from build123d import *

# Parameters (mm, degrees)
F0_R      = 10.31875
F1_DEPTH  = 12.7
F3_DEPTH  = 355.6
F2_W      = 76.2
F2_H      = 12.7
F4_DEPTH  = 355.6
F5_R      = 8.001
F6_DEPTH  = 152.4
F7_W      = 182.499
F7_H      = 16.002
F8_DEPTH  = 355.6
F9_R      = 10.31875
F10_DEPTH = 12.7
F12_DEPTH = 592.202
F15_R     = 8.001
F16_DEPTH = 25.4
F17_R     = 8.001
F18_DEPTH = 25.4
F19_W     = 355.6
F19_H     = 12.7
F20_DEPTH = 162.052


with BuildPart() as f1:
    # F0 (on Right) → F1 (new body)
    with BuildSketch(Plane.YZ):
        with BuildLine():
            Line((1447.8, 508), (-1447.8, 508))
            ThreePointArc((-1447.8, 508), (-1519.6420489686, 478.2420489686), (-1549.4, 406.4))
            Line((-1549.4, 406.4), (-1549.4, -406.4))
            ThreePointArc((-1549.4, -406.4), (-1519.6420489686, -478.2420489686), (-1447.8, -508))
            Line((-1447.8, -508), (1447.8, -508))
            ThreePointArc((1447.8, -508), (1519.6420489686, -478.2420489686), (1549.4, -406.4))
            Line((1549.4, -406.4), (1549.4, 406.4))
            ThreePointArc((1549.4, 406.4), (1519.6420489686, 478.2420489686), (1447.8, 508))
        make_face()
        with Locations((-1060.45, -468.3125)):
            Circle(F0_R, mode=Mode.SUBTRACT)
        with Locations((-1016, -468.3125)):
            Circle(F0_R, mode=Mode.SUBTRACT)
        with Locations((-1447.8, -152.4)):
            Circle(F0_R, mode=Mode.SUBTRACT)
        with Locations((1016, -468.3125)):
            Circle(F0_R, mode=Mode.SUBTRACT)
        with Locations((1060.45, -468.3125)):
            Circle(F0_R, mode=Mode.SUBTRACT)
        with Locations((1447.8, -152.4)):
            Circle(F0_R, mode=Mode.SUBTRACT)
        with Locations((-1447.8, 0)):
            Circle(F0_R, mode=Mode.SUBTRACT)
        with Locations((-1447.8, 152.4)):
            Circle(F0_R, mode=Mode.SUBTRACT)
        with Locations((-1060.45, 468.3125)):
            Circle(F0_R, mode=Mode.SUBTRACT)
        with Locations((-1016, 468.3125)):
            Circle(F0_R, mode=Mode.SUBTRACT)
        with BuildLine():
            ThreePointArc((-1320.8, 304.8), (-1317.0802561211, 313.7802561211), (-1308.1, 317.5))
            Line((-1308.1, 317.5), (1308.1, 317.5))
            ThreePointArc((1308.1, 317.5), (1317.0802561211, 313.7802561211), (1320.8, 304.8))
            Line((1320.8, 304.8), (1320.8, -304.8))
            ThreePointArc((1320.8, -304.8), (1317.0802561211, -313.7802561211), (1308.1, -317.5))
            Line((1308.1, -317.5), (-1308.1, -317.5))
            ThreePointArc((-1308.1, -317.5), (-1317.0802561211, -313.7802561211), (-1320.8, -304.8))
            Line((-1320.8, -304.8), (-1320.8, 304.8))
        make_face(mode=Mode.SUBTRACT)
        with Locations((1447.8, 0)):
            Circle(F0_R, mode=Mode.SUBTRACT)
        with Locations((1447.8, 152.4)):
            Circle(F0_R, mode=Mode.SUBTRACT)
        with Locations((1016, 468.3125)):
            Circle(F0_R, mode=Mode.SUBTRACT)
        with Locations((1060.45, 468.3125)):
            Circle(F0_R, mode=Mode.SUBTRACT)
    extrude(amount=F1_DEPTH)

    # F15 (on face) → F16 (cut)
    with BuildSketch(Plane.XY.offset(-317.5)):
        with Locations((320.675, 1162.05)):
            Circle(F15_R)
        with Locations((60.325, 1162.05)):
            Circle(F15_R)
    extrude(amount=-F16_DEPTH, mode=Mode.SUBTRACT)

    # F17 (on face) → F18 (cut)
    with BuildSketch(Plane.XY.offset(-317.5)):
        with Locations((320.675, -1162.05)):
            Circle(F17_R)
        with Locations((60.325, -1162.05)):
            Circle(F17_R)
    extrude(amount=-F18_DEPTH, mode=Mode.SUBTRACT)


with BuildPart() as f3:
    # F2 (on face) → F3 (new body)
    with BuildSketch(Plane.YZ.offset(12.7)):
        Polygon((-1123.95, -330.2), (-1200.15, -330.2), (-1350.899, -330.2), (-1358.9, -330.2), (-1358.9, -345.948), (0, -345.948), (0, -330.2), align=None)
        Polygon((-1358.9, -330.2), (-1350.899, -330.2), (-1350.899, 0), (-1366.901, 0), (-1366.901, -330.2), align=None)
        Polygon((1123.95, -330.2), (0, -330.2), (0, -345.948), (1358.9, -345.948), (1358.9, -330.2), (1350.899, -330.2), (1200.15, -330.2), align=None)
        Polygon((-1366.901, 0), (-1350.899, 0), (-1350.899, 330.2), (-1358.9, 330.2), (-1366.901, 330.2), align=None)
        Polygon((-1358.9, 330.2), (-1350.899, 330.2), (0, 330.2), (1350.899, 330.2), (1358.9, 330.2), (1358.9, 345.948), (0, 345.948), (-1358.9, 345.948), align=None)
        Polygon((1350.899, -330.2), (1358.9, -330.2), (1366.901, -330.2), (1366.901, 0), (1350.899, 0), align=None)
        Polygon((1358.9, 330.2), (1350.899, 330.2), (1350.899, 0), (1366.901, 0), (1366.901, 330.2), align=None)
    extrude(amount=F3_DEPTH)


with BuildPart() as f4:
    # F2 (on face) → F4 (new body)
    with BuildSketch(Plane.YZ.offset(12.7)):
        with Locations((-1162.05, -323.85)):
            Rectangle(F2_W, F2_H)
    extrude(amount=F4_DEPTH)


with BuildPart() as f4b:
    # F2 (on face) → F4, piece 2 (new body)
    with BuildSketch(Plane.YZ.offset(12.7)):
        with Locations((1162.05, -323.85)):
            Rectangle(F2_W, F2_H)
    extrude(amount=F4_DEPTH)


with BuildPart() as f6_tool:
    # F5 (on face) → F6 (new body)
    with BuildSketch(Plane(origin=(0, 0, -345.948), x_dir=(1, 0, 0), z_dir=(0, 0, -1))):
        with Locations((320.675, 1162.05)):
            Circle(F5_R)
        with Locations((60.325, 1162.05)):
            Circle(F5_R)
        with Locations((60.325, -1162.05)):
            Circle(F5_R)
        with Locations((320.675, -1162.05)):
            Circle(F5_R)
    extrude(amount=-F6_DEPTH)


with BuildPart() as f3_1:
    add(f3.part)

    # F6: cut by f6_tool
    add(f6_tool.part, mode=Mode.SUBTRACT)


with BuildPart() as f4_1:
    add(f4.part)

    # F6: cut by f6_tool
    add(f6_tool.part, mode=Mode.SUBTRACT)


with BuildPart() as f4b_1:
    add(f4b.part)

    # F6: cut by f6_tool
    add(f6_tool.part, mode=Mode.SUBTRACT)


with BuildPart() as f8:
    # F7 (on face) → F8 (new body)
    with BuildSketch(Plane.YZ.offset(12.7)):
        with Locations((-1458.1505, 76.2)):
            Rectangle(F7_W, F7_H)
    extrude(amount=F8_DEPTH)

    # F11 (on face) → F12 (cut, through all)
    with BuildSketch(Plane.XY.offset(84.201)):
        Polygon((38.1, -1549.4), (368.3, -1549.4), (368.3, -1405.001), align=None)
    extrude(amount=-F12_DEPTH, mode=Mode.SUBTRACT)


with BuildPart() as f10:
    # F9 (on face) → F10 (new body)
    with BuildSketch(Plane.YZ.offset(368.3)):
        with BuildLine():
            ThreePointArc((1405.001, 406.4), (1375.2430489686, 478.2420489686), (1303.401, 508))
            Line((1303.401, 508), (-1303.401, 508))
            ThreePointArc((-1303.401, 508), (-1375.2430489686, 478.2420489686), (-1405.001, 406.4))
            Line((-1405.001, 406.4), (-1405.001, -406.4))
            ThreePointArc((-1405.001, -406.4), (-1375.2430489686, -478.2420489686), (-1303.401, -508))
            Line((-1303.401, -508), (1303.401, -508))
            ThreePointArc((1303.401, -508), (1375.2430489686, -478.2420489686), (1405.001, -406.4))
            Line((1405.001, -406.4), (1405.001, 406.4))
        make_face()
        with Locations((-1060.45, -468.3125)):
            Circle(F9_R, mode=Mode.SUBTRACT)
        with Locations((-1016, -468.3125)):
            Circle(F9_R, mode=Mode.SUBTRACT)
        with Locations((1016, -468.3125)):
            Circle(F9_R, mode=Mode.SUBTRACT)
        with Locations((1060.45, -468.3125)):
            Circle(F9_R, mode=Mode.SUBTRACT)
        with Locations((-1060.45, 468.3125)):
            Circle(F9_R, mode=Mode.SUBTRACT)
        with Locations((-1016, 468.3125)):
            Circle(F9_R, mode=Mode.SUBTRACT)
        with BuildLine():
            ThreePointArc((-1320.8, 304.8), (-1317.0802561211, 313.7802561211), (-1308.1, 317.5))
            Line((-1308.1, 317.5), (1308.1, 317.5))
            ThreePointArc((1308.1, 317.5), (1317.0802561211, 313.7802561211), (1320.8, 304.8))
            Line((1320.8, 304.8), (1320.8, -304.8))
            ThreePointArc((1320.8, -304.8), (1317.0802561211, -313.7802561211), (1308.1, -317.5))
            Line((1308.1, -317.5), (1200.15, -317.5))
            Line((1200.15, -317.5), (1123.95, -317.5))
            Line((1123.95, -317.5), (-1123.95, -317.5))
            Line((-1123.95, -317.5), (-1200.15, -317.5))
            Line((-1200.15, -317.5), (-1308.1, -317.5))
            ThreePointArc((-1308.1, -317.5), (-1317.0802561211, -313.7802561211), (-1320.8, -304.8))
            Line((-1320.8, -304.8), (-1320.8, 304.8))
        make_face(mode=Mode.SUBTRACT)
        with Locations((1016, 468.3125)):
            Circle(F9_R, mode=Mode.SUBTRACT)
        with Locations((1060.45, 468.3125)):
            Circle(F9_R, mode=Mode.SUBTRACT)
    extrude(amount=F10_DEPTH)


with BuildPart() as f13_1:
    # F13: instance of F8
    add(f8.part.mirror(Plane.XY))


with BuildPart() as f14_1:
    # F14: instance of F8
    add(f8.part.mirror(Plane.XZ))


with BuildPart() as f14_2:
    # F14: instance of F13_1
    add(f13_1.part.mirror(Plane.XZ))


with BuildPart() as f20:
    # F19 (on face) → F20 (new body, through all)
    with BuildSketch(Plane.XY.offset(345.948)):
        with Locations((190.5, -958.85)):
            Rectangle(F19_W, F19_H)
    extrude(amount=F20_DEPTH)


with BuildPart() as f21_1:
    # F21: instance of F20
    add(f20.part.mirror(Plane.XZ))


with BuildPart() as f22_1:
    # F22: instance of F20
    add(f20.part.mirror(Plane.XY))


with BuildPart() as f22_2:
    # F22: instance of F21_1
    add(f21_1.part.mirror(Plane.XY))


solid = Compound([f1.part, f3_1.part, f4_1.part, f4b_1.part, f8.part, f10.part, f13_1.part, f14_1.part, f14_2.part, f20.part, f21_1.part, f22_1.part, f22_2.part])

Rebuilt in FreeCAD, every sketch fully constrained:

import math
import FreeCAD as App
import Part
import Sketcher
Q = App.Units.Quantity


def add_polygon(sketch, points):
    """Adds a closed chain of lines whose ends are joined by coincident constraints."""
    first, n = sketch.GeometryCount, len(points)
    for a, b in zip(points, points[1:] + points[:1]):
        sketch.addGeometry(Part.LineSegment(App.Vector(*a, 0), App.Vector(*b, 0)), False)
    for i in range(n):
        sketch.addConstraint(Sketcher.Constraint("Coincident", first + i, 2, first + (i + 1) % n, 1))

doc = App.newDocument("Part")
body = doc.addObject("PartDesign::Body", "Body")

sketch1 = doc.addObject("Sketcher::SketchObject", "Sketch")
body.addObject(sketch1)
sketch1.AttachmentSupport = (doc.YZ_Plane, [""])
sketch1.MapMode = "FlatFace"
sketch1.addGeometry(Part.LineSegment(App.Vector(1448, 508, 0), App.Vector(-1448, 508, 0)), False)
sketch1.addGeometry(Part.ArcOfCircle(Part.Circle(App.Vector(-1448, 406, 0), App.Vector(0, 0, 1), 102), math.radians(90), math.radians(180)), False)
sketch1.addGeometry(Part.LineSegment(App.Vector(-1549, 406, 0), App.Vector(-1549, -406, 0)), False)
sketch1.addGeometry(Part.ArcOfCircle(Part.Circle(App.Vector(-1448, -406, 0), App.Vector(0, 0, 1), 102), math.radians(180), math.radians(270)), False)
sketch1.addGeometry(Part.LineSegment(App.Vector(-1448, -508, 0), App.Vector(1448, -508, 0)), False)
sketch1.addGeometry(Part.ArcOfCircle(Part.Circle(App.Vector(1448, -406, 0), App.Vector(0, 0, 1), 102), math.radians(-90), math.radians(0)), False)
sketch1.addGeometry(Part.LineSegment(App.Vector(1549, -406, 0), App.Vector(1549, 406, 0)), False)
sketch1.addGeometry(Part.ArcOfCircle(Part.Circle(App.Vector(1448, 406, 0), App.Vector(0, 0, 1), 102), math.radians(0), math.radians(90)), False)
sketch1.addGeometry(Part.Circle(App.Vector(-1060, -468, 0), App.Vector(0, 0, 1), 10), False)
sketch1.addGeometry(Part.Circle(App.Vector(-1016, -468, 0), App.Vector(0, 0, 1), 10), False)
sketch1.addGeometry(Part.Circle(App.Vector(-1448, -152, 0), App.Vector(0, 0, 1), 10), False)
sketch1.addGeometry(Part.Circle(App.Vector(1016, -468, 0), App.Vector(0, 0, 1), 10), False)
sketch1.addGeometry(Part.Circle(App.Vector(1060, -468, 0), App.Vector(0, 0, 1), 10), False)
sketch1.addGeometry(Part.Circle(App.Vector(1448, -152, 0), App.Vector(0, 0, 1), 10), False)
sketch1.addGeometry(Part.Circle(App.Vector(-1448, 0, 0), App.Vector(0, 0, 1), 10), False)
sketch1.addGeometry(Part.Circle(App.Vector(-1448, 152, 0), App.Vector(0, 0, 1), 10), False)
sketch1.addGeometry(Part.Circle(App.Vector(-1060, 468, 0), App.Vector(0, 0, 1), 10), False)
sketch1.addGeometry(Part.Circle(App.Vector(-1016, 468, 0), App.Vector(0, 0, 1), 10), False)
sketch1.addGeometry(Part.LineSegment(App.Vector(-1321, -305, 0), App.Vector(-1321, 305, 0)), False)
sketch1.addGeometry(Part.ArcOfCircle(Part.Circle(App.Vector(-1308, 305, 0), App.Vector(0, 0, 1), 13), math.radians(90), math.radians(180)), False)
sketch1.addGeometry(Part.LineSegment(App.Vector(-1308, 318, 0), App.Vector(1308, 318, 0)), False)
sketch1.addGeometry(Part.ArcOfCircle(Part.Circle(App.Vector(1308, 305, 0), App.Vector(0, 0, 1), 13), math.radians(0), math.radians(90)), False)
sketch1.addGeometry(Part.LineSegment(App.Vector(1321, 305, 0), App.Vector(1321, -305, 0)), False)
sketch1.addGeometry(Part.ArcOfCircle(Part.Circle(App.Vector(1308, -305, 0), App.Vector(0, 0, 1), 13), math.radians(-90), math.radians(0)), False)
sketch1.addGeometry(Part.LineSegment(App.Vector(1308, -318, 0), App.Vector(-1308, -318, 0)), False)
sketch1.addGeometry(Part.ArcOfCircle(Part.Circle(App.Vector(-1308, -305, 0), App.Vector(0, 0, 1), 13), math.radians(180), math.radians(270)), False)
sketch1.addGeometry(Part.Circle(App.Vector(1448, 0, 0), App.Vector(0, 0, 1), 10), False)
sketch1.addGeometry(Part.Circle(App.Vector(1448, 152, 0), App.Vector(0, 0, 1), 10), False)
sketch1.addGeometry(Part.Circle(App.Vector(1016, 468, 0), App.Vector(0, 0, 1), 10), False)
sketch1.addGeometry(Part.Circle(App.Vector(1060, 468, 0), App.Vector(0, 0, 1), 10), False)
sketch1.addConstraint(Sketcher.Constraint("Tangent", 0, 2, 1, 1))
sketch1.addConstraint(Sketcher.Constraint("Tangent", 1, 2, 2, 1))
sketch1.addConstraint(Sketcher.Constraint("Tangent", 2, 2, 3, 1))
sketch1.addConstraint(Sketcher.Constraint("Tangent", 3, 2, 4, 1))
sketch1.addConstraint(Sketcher.Constraint("Tangent", 4, 2, 5, 1))
sketch1.addConstraint(Sketcher.Constraint("Tangent", 5, 2, 6, 1))
sketch1.addConstraint(Sketcher.Constraint("Tangent", 6, 2, 7, 1))
sketch1.addConstraint(Sketcher.Constraint("Tangent", 7, 2, 0, 1))
sketch1.addConstraint(Sketcher.Constraint("Tangent", 18, 2, 19, 2))
sketch1.addConstraint(Sketcher.Constraint("Tangent", 19, 1, 20, 1))
sketch1.addConstraint(Sketcher.Constraint("Tangent", 20, 2, 21, 2))
sketch1.addConstraint(Sketcher.Constraint("Tangent", 21, 1, 22, 1))
sketch1.addConstraint(Sketcher.Constraint("Tangent", 22, 2, 23, 2))
sketch1.addConstraint(Sketcher.Constraint("Tangent", 23, 1, 24, 1))
sketch1.addConstraint(Sketcher.Constraint("Tangent", 24, 2, 25, 2))
sketch1.addConstraint(Sketcher.Constraint("Tangent", 25, 1, 18, 1))
sketch1.addConstraint(Sketcher.Constraint("Horizontal", 0))
sketch1.addConstraint(Sketcher.Constraint("Vertical", 2))
sketch1.addConstraint(Sketcher.Constraint("Horizontal", 4))
sketch1.addConstraint(Sketcher.Constraint("Vertical", 6))
sketch1.addConstraint(Sketcher.Constraint("Vertical", 18))
sketch1.addConstraint(Sketcher.Constraint("Horizontal", 20))
sketch1.addConstraint(Sketcher.Constraint("Vertical", 22))
sketch1.addConstraint(Sketcher.Constraint("Horizontal", 24))
sketch1.addConstraint(Sketcher.Constraint("Equal", 1, 3))
sketch1.addConstraint(Sketcher.Constraint("Equal", 3, 5))
sketch1.addConstraint(Sketcher.Constraint("Equal", 5, 7))
sketch1.addConstraint(Sketcher.Constraint("Equal", 8, 9))
sketch1.addConstraint(Sketcher.Constraint("Equal", 9, 10))
sketch1.addConstraint(Sketcher.Constraint("Equal", 10, 11))
sketch1.addConstraint(Sketcher.Constraint("Equal", 11, 12))
sketch1.addConstraint(Sketcher.Constraint("Equal", 12, 13))
sketch1.addConstraint(Sketcher.Constraint("Equal", 13, 14))
sketch1.addConstraint(Sketcher.Constraint("Equal", 14, 15))
sketch1.addConstraint(Sketcher.Constraint("Equal", 15, 16))
sketch1.addConstraint(Sketcher.Constraint("Equal", 16, 17))
sketch1.addConstraint(Sketcher.Constraint("Equal", 19, 21))
sketch1.addConstraint(Sketcher.Constraint("Equal", 21, 23))
sketch1.addConstraint(Sketcher.Constraint("Equal", 23, 25))
sketch1.addConstraint(Sketcher.Constraint("Equal", 17, 26))
sketch1.addConstraint(Sketcher.Constraint("Equal", 26, 27))
sketch1.addConstraint(Sketcher.Constraint("Equal", 27, 28))
sketch1.addConstraint(Sketcher.Constraint("Equal", 28, 29))
sketch1.addConstraint(Sketcher.Constraint("Symmetric", 1, 3, 5, 3, -1, 1))
sketch1.addConstraint(Sketcher.Constraint("Symmetric", 13, 3, 15, 3, -1, 1))
sketch1.addConstraint(Sketcher.Constraint("Symmetric", 12, 3, 16, 3, -1, 1))
sketch1.addConstraint(Sketcher.Constraint("Symmetric", 11, 3, 17, 3, -1, 1))
sketch1.addConstraint(Sketcher.Constraint("Symmetric", 19, 3, 23, 3, -1, 1))
sketch1.addConstraint(Sketcher.Constraint("Symmetric", 14, 3, 26, 3, -1, 1))
sketch1.addConstraint(Sketcher.Constraint("Symmetric", 10, 3, 27, 3, -1, 1))
sketch1.addConstraint(Sketcher.Constraint("Symmetric", 9, 3, 28, 3, -1, 1))
sketch1.addConstraint(Sketcher.Constraint("Symmetric", 8, 3, 29, 3, -1, 1))
sketch1.addConstraint(Sketcher.Constraint("Symmetric", 9, 3, 11, 3, -2))
sketch1.addConstraint(Sketcher.Constraint("Symmetric", 8, 3, 12, 3, -2))
sketch1.addConstraint(Sketcher.Constraint("Symmetric", 10, 3, 13, 3, -2))
sketch1.addConstraint(Sketcher.Constraint("PointOnObject", 14, 3, -1))
sketch1.addConstraint(Sketcher.Constraint("Horizontal", 8, 3, 9, 3))
sketch1.addConstraint(Sketcher.Constraint("Vertical", 3, 3, 10, 3))
sketch1.addConstraint(Sketcher.Constraint("Vertical", 10, 3, 14, 3))
sketch1.addConstraint(Sketcher.Constraint("Radius", 1, Q("4 in")))
sketch1.addConstraint(Sketcher.Constraint("Radius", 19, Q("0.5 in")))
sketch1.addConstraint(Sketcher.Constraint("DistanceX", 0, 2, 0, 1, Q("114 in")))
sketch1.addConstraint(Sketcher.Constraint("DistanceX", 20, 1, 20, 2, Q("103 in")))
sketch1.addConstraint(Sketcher.Constraint("DistanceY", 2, 2, 2, 1, Q("32 in")))
sketch1.addConstraint(Sketcher.Constraint("DistanceY", 18, 1, 18, 2, Q("24 in")))
sketch1.addConstraint(Sketcher.Constraint("Diameter", 8, Q("0.8125 in")))
sketch1.addConstraint(Sketcher.Constraint("DistanceX", 9, 3, -1, 1, Q("40 in")))
sketch1.addConstraint(Sketcher.Constraint("DistanceY", 10, 3, -1, 1, Q("6 in")))
sketch1.addConstraint(Sketcher.Constraint("DistanceX", 8, 3, 12, 3, Q("83.5 in")))
sketch1.addConstraint(Sketcher.Constraint("DistanceY", 8, 3, -1, 1, Q("18.4375 in")))
pad1 = doc.addObject("PartDesign::Pad", "Pad")
body.addObject(pad1)
pad1.Profile = sketch1
pad1.Length = Q("0.5 in")

sketch2 = doc.addObject("Sketcher::SketchObject", "Sketch001")
body.addObject(sketch2)
sketch2.AttachmentSupport = (doc.XY_Plane, [""])
sketch2.MapMode = "FlatFace"
sketch2.AttachmentOffset = App.Placement(App.Vector(0, 0, -12.5 * 25.4), App.Rotation())
sketch2.addGeometry(Part.Circle(App.Vector(321, 1162, 0), App.Vector(0, 0, 1), 8), False)
sketch2.addGeometry(Part.Circle(App.Vector(60, 1162, 0), App.Vector(0, 0, 1), 8), False)
sketch2.addConstraint(Sketcher.Constraint("Equal", 0, 1))
sketch2.addConstraint(Sketcher.Constraint("Horizontal", 0, 3, 1, 3))
sketch2.addConstraint(Sketcher.Constraint("Diameter", 0, Q("0.63 in")))
sketch2.addConstraint(Sketcher.Constraint("DistanceY", -1, 1, 0, 3, Q("45.75 in")))
sketch2.addConstraint(Sketcher.Constraint("DistanceX", 1, 3, 0, 3, Q("10.25 in")))
sketch2.addConstraint(Sketcher.Constraint("DistanceX", -1, 1, 0, 3, Q("12.625 in")))
pocket1 = doc.addObject("PartDesign::Pocket", "Pocket")
body.addObject(pocket1)
pocket1.Profile = sketch2
pocket1.Length = Q("1 in")

sketch3 = doc.addObject("Sketcher::SketchObject", "Sketch002")
body.addObject(sketch3)
sketch3.AttachmentSupport = (doc.XY_Plane, [""])
sketch3.MapMode = "FlatFace"
sketch3.AttachmentOffset = App.Placement(App.Vector(0, 0, -12.5 * 25.4), App.Rotation())
sketch3.addGeometry(Part.Circle(App.Vector(321, -1162, 0), App.Vector(0, 0, 1), 8), False)
sketch3.addGeometry(Part.Circle(App.Vector(60, -1162, 0), App.Vector(0, 0, 1), 8), False)
sketch3.addConstraint(Sketcher.Constraint("Equal", 0, 1))
sketch3.addConstraint(Sketcher.Constraint("Horizontal", 0, 3, 1, 3))
sketch3.addConstraint(Sketcher.Constraint("Diameter", 0, Q("0.63 in")))
sketch3.addConstraint(Sketcher.Constraint("DistanceY", 0, 3, -1, 1, Q("45.75 in")))
sketch3.addConstraint(Sketcher.Constraint("DistanceX", 1, 3, 0, 3, Q("10.25 in")))
sketch3.addConstraint(Sketcher.Constraint("DistanceX", -1, 1, 0, 3, Q("12.625 in")))
pocket2 = doc.addObject("PartDesign::Pocket", "Pocket001")
body.addObject(pocket2)
pocket2.Profile = sketch3
pocket2.Length = Q("1 in")
body2 = doc.addObject("PartDesign::Body", "Body001")

sketch4 = doc.addObject("Sketcher::SketchObject", "Sketch003")
body2.addObject(sketch4)
sketch4.AttachmentSupport = (doc.getObject("YZ_Plane001"), [""])
sketch4.MapMode = "FlatFace"
sketch4.AttachmentOffset = App.Placement(App.Vector(0, 0, 0.5 * 25.4), App.Rotation())
add_polygon(sketch4, [(-1359, -330), (-1359, -346), (1359, -346), (1359, -330), (1367, -330), (1367, 330), (1359, 330), (1359, 346), (-1359, 346), (-1359, 330), (-1367, 330), (-1367, -330)])
add_polygon(sketch4, [(1351, -330), (-1351, -330), (-1351, 330), (1351, 330)])
sketch4.addConstraint(Sketcher.Constraint("Vertical", 0))
sketch4.addConstraint(Sketcher.Constraint("Horizontal", 1))
sketch4.addConstraint(Sketcher.Constraint("Vertical", 2))
sketch4.addConstraint(Sketcher.Constraint("Horizontal", 3))
sketch4.addConstraint(Sketcher.Constraint("Vertical", 4))
sketch4.addConstraint(Sketcher.Constraint("Horizontal", 5))
sketch4.addConstraint(Sketcher.Constraint("Vertical", 6))
sketch4.addConstraint(Sketcher.Constraint("Horizontal", 7))
sketch4.addConstraint(Sketcher.Constraint("Vertical", 8))
sketch4.addConstraint(Sketcher.Constraint("Horizontal", 9))
sketch4.addConstraint(Sketcher.Constraint("Vertical", 10))
sketch4.addConstraint(Sketcher.Constraint("Horizontal", 11))
sketch4.addConstraint(Sketcher.Constraint("Horizontal", 12))
sketch4.addConstraint(Sketcher.Constraint("Vertical", 13))
sketch4.addConstraint(Sketcher.Constraint("Horizontal", 14))
sketch4.addConstraint(Sketcher.Constraint("Vertical", 15))
sketch4.addConstraint(Sketcher.Constraint("Symmetric", 0, 2, 6, 2, -1, 1))
sketch4.addConstraint(Sketcher.Constraint("Symmetric", 2, 2, 8, 2, -1, 1))
sketch4.addConstraint(Sketcher.Constraint("Symmetric", 4, 2, 10, 2, -1, 1))
sketch4.addConstraint(Sketcher.Constraint("Symmetric", 12, 2, 14, 2, -1, 1))
sketch4.addConstraint(Sketcher.Constraint("Symmetric", 5, 2, 8, 2, -2))
sketch4.addConstraint(Sketcher.Constraint("Horizontal", 11, 2, 12, 2))
sketch4.addConstraint(Sketcher.Constraint("DistanceX", 1, 1, 1, 2, Q("107 in")))
sketch4.addConstraint(Sketcher.Constraint("DistanceY", 4, 1, 4, 2, Q("26 in")))
sketch4.addConstraint(Sketcher.Constraint("DistanceX", 12, 2, 12, 1, Q("106.37 in")))
sketch4.addConstraint(Sketcher.Constraint("DistanceY", 0, 2, 0, 1, Q("0.62 in")))
sketch4.addConstraint(Sketcher.Constraint("DistanceX", 3, 1, 3, 2, Q("0.315 in")))
pad2 = doc.addObject("PartDesign::Pad", "Pad001")
body2.addObject(pad2)
pad2.Profile = sketch4
pad2.Length = Q("14 in")
body3 = doc.addObject("PartDesign::Body", "Body002")

sketch5 = doc.addObject("Sketcher::SketchObject", "Sketch004")
body3.addObject(sketch5)
sketch5.AttachmentSupport = (doc.getObject("YZ_Plane002"), [""])
sketch5.MapMode = "FlatFace"
sketch5.AttachmentOffset = App.Placement(App.Vector(0, 0, 0.5 * 25.4), App.Rotation())
add_polygon(sketch5, [(-1200, -318), (-1200, -330), (-1124, -330), (-1124, -318)])
sketch5.addConstraint(Sketcher.Constraint("Vertical", 0))
sketch5.addConstraint(Sketcher.Constraint("Horizontal", 1))
sketch5.addConstraint(Sketcher.Constraint("Vertical", 2))
sketch5.addConstraint(Sketcher.Constraint("Horizontal", 3))
sketch5.addConstraint(Sketcher.Constraint("DistanceX", 1, 1, 1, 2, Q("3 in")))
sketch5.addConstraint(Sketcher.Constraint("DistanceY", 0, 2, 0, 1, Q("0.5 in")))
sketch5.addConstraint(Sketcher.Constraint("DistanceY", 0, 2, -1, 1, Q("13 in")))
sketch5.addConstraint(Sketcher.Constraint("DistanceX", 0, 2, -1, 1, Q("47.25 in")))
pad3 = doc.addObject("PartDesign::Pad", "Pad002")
body3.addObject(pad3)
pad3.Profile = sketch5
pad3.Length = Q("14 in")
body4 = doc.addObject("PartDesign::Body", "Body003")

sketch6 = doc.addObject("Sketcher::SketchObject", "Sketch005")
body4.addObject(sketch6)
sketch6.AttachmentSupport = (doc.getObject("YZ_Plane003"), [""])
sketch6.MapMode = "FlatFace"
sketch6.AttachmentOffset = App.Placement(App.Vector(0, 0, 0.5 * 25.4), App.Rotation())
add_polygon(sketch6, [(1124, -318), (1124, -330), (1200, -330), (1200, -318)])
sketch6.addConstraint(Sketcher.Constraint("Vertical", 0))
sketch6.addConstraint(Sketcher.Constraint("Horizontal", 1))
sketch6.addConstraint(Sketcher.Constraint("Vertical", 2))
sketch6.addConstraint(Sketcher.Constraint("Horizontal", 3))
sketch6.addConstraint(Sketcher.Constraint("DistanceX", 1, 1, 1, 2, Q("3 in")))
sketch6.addConstraint(Sketcher.Constraint("DistanceY", 0, 2, 0, 1, Q("0.5 in")))
sketch6.addConstraint(Sketcher.Constraint("DistanceY", 0, 2, -1, 1, Q("13 in")))
sketch6.addConstraint(Sketcher.Constraint("DistanceX", -1, 1, 0, 2, Q("44.25 in")))
pad4 = doc.addObject("PartDesign::Pad", "Pad003")
body4.addObject(pad4)
pad4.Profile = sketch6
pad4.Length = Q("14 in")
body5 = doc.addObject("PartDesign::Body", "Body004")
body5.AllowCompound = True

sketch7 = doc.addObject("Sketcher::SketchObject", "Sketch006")
body5.addObject(sketch7)
sketch7.AttachmentSupport = (doc.getObject("XY_Plane004"), [""])
sketch7.MapMode = "FlatFace"
sketch7.AttachmentOffset = App.Placement(App.Vector(0, 0, -13.62 * 25.4), App.Rotation())
sketch7.addGeometry(Part.Circle(App.Vector(321, -1162, 0), App.Vector(0, 0, 1), 8), False)
sketch7.addGeometry(Part.Circle(App.Vector(60, -1162, 0), App.Vector(0, 0, 1), 8), False)
sketch7.addGeometry(Part.Circle(App.Vector(60, 1162, 0), App.Vector(0, 0, 1), 8), False)
sketch7.addGeometry(Part.Circle(App.Vector(321, 1162, 0), App.Vector(0, 0, 1), 8), False)
sketch7.addConstraint(Sketcher.Constraint("Equal", 0, 1))
sketch7.addConstraint(Sketcher.Constraint("Equal", 1, 2))
sketch7.addConstraint(Sketcher.Constraint("Equal", 2, 3))
sketch7.addConstraint(Sketcher.Constraint("Symmetric", 1, 3, 2, 3, -1))
sketch7.addConstraint(Sketcher.Constraint("Symmetric", 0, 3, 3, 3, -1))
sketch7.addConstraint(Sketcher.Constraint("Horizontal", 0, 3, 1, 3))
sketch7.addConstraint(Sketcher.Constraint("Diameter", 0, Q("0.63 in")))
sketch7.addConstraint(Sketcher.Constraint("DistanceY", 1, 3, 2, 3, Q("91.5 in")))
sketch7.addConstraint(Sketcher.Constraint("DistanceX", 1, 3, 0, 3, Q("10.25 in")))
sketch7.addConstraint(Sketcher.Constraint("DistanceX", -1, 1, 0, 3, Q("12.625 in")))
pad5 = doc.addObject("PartDesign::Pad", "Pad004")
body5.addObject(pad5)
pad5.Profile = sketch7
pad5.Length = Q("6 in")
doc.recompute()

body6 = doc.addObject("PartDesign::Body", "Body005")
body6.BaseFeature = body5
boolean = doc.addObject("PartDesign::Boolean", "Boolean")
body2.addObject(boolean)
boolean.Type = "Cut"
boolean.addObjects([body6])
doc.recompute()

body7 = doc.addObject("PartDesign::Body", "Body006")
body7.BaseFeature = body5
boolean2 = doc.addObject("PartDesign::Boolean", "Boolean001")
body3.addObject(boolean2)
boolean2.Type = "Cut"
boolean2.addObjects([body7])
doc.recompute()

boolean3 = doc.addObject("PartDesign::Boolean", "Boolean002")
body4.addObject(boolean3)
boolean3.Type = "Cut"
boolean3.addObjects([body5])
body8 = doc.addObject("PartDesign::Body", "Body007")

sketch8 = doc.addObject("Sketcher::SketchObject", "Sketch007")
body8.addObject(sketch8)
sketch8.AttachmentSupport = (doc.getObject("YZ_Plane007"), [""])
sketch8.MapMode = "FlatFace"
sketch8.AttachmentOffset = App.Placement(App.Vector(0, 0, 0.5 * 25.4), App.Rotation())
add_polygon(sketch8, [(-1549, 84), (-1549, 68), (-1367, 68), (-1367, 84)])
sketch8.addConstraint(Sketcher.Constraint("Vertical", 0))
sketch8.addConstraint(Sketcher.Constraint("Horizontal", 1))
sketch8.addConstraint(Sketcher.Constraint("Vertical", 2))
sketch8.addConstraint(Sketcher.Constraint("Horizontal", 3))
sketch8.addConstraint(Sketcher.Constraint("DistanceX", 0, 2, -1, 1, Q("61 in")))
sketch8.addConstraint(Sketcher.Constraint("DistanceY", 0, 2, 0, 1, Q("0.63 in")))
sketch8.addConstraint(Sketcher.Constraint("DistanceX", 1, 1, 1, 2, Q("7.185 in")))
sketch8.addConstraint(Sketcher.Constraint("DistanceY", -1, 1, 0, 2, Q("2.685 in")))
pad6 = doc.addObject("PartDesign::Pad", "Pad005")
body8.addObject(pad6)
pad6.Profile = sketch8
pad6.Length = Q("14 in")

sketch9 = doc.addObject("Sketcher::SketchObject", "Sketch008")
body8.addObject(sketch9)
sketch9.AttachmentSupport = (doc.getObject("XY_Plane007"), [""])
sketch9.MapMode = "FlatFace"
sketch9.AttachmentOffset = App.Placement(App.Vector(0, 0, 3.315 * 25.4), App.Rotation())
add_polygon(sketch9, [(38.1, -1549.4), (368.3, -1549.4), (368.3, -1405.001)])
sketch9.addConstraint(Sketcher.Constraint("Horizontal", 0))
sketch9.addConstraint(Sketcher.Constraint("Vertical", 1))
sketch9.addConstraint(Sketcher.Constraint("DistanceX", 0, 1, 0, 2, Q("13 in")))
sketch9.addConstraint(Sketcher.Constraint("DistanceY", 0, 2, -1, 1, Q("61 in")))
sketch9.addConstraint(Sketcher.Constraint("DistanceX", -1, 1, 0, 2, Q("14.5 in")))
sketch9.addConstraint(Sketcher.Constraint("DistanceY", 1, 1, 1, 2, Q("5.685 in")))
pocket3 = doc.addObject("PartDesign::Pocket", "Pocket002")
body8.addObject(pocket3)
pocket3.Profile = sketch9
pocket3.Type = "ThroughAll"
body9 = doc.addObject("PartDesign::Body", "Body008")

sketch10 = doc.addObject("Sketcher::SketchObject", "Sketch009")
body9.addObject(sketch10)
sketch10.AttachmentSupport = (doc.getObject("YZ_Plane008"), [""])
sketch10.MapMode = "FlatFace"
sketch10.AttachmentOffset = App.Placement(App.Vector(0, 0, 14.5 * 25.4), App.Rotation())
sketch10.addGeometry(Part.ArcOfCircle(Part.Circle(App.Vector(1303, 406, 0), App.Vector(0, 0, 1), 102), math.radians(0), math.radians(90)), False)
sketch10.addGeometry(Part.LineSegment(App.Vector(1303, 508, 0), App.Vector(-1303, 508, 0)), False)
sketch10.addGeometry(Part.ArcOfCircle(Part.Circle(App.Vector(-1303, 406, 0), App.Vector(0, 0, 1), 102), math.radians(90), math.radians(180)), False)
sketch10.addGeometry(Part.LineSegment(App.Vector(-1405, 406, 0), App.Vector(-1405, -406, 0)), False)
sketch10.addGeometry(Part.ArcOfCircle(Part.Circle(App.Vector(-1303, -406, 0), App.Vector(0, 0, 1), 102), math.radians(180), math.radians(270)), False)
sketch10.addGeometry(Part.LineSegment(App.Vector(-1303, -508, 0), App.Vector(1303, -508, 0)), False)
sketch10.addGeometry(Part.ArcOfCircle(Part.Circle(App.Vector(1303, -406, 0), App.Vector(0, 0, 1), 102), math.radians(-90), math.radians(0)), False)
sketch10.addGeometry(Part.LineSegment(App.Vector(1405, -406, 0), App.Vector(1405, 406, 0)), False)
sketch10.addGeometry(Part.Circle(App.Vector(-1060, -468, 0), App.Vector(0, 0, 1), 10), False)
sketch10.addGeometry(Part.Circle(App.Vector(-1016, -468, 0), App.Vector(0, 0, 1), 10), False)
sketch10.addGeometry(Part.Circle(App.Vector(1016, -468, 0), App.Vector(0, 0, 1), 10), False)
sketch10.addGeometry(Part.Circle(App.Vector(1060, -468, 0), App.Vector(0, 0, 1), 10), False)
sketch10.addGeometry(Part.Circle(App.Vector(-1060, 468, 0), App.Vector(0, 0, 1), 10), False)
sketch10.addGeometry(Part.Circle(App.Vector(-1016, 468, 0), App.Vector(0, 0, 1), 10), False)
sketch10.addGeometry(Part.LineSegment(App.Vector(-1321, -305, 0), App.Vector(-1321, 305, 0)), False)
sketch10.addGeometry(Part.ArcOfCircle(Part.Circle(App.Vector(-1308, 305, 0), App.Vector(0, 0, 1), 13), math.radians(90), math.radians(180)), False)
sketch10.addGeometry(Part.LineSegment(App.Vector(-1308, 318, 0), App.Vector(1308, 318, 0)), False)
sketch10.addGeometry(Part.ArcOfCircle(Part.Circle(App.Vector(1308, 305, 0), App.Vector(0, 0, 1), 13), math.radians(0), math.radians(90)), False)
sketch10.addGeometry(Part.LineSegment(App.Vector(1321, 305, 0), App.Vector(1321, -305, 0)), False)
sketch10.addGeometry(Part.ArcOfCircle(Part.Circle(App.Vector(1308, -305, 0), App.Vector(0, 0, 1), 13), math.radians(-90), math.radians(0)), False)
sketch10.addGeometry(Part.LineSegment(App.Vector(1308, -318, 0), App.Vector(-1308, -318, 0)), False)
sketch10.addGeometry(Part.ArcOfCircle(Part.Circle(App.Vector(-1308, -305, 0), App.Vector(0, 0, 1), 13), math.radians(180), math.radians(270)), False)
sketch10.addGeometry(Part.Circle(App.Vector(1016, 468, 0), App.Vector(0, 0, 1), 10), False)
sketch10.addGeometry(Part.Circle(App.Vector(1060, 468, 0), App.Vector(0, 0, 1), 10), False)
sketch10.addConstraint(Sketcher.Constraint("Tangent", 0, 2, 1, 1))
sketch10.addConstraint(Sketcher.Constraint("Tangent", 1, 2, 2, 1))
sketch10.addConstraint(Sketcher.Constraint("Tangent", 2, 2, 3, 1))
sketch10.addConstraint(Sketcher.Constraint("Tangent", 3, 2, 4, 1))
sketch10.addConstraint(Sketcher.Constraint("Tangent", 4, 2, 5, 1))
sketch10.addConstraint(Sketcher.Constraint("Tangent", 5, 2, 6, 1))
sketch10.addConstraint(Sketcher.Constraint("Tangent", 6, 2, 7, 1))
sketch10.addConstraint(Sketcher.Constraint("Tangent", 7, 2, 0, 1))
sketch10.addConstraint(Sketcher.Constraint("Tangent", 14, 2, 15, 2))
sketch10.addConstraint(Sketcher.Constraint("Tangent", 15, 1, 16, 1))
sketch10.addConstraint(Sketcher.Constraint("Tangent", 16, 2, 17, 2))
sketch10.addConstraint(Sketcher.Constraint("Tangent", 17, 1, 18, 1))
sketch10.addConstraint(Sketcher.Constraint("Tangent", 18, 2, 19, 2))
sketch10.addConstraint(Sketcher.Constraint("Tangent", 19, 1, 20, 1))
sketch10.addConstraint(Sketcher.Constraint("Tangent", 20, 2, 21, 2))
sketch10.addConstraint(Sketcher.Constraint("Tangent", 21, 1, 14, 1))
sketch10.addConstraint(Sketcher.Constraint("Horizontal", 1))
sketch10.addConstraint(Sketcher.Constraint("Vertical", 3))
sketch10.addConstraint(Sketcher.Constraint("Horizontal", 5))
sketch10.addConstraint(Sketcher.Constraint("Vertical", 7))
sketch10.addConstraint(Sketcher.Constraint("Vertical", 14))
sketch10.addConstraint(Sketcher.Constraint("Horizontal", 16))
sketch10.addConstraint(Sketcher.Constraint("Vertical", 18))
sketch10.addConstraint(Sketcher.Constraint("Horizontal", 20))
sketch10.addConstraint(Sketcher.Constraint("Equal", 0, 2))
sketch10.addConstraint(Sketcher.Constraint("Equal", 2, 4))
sketch10.addConstraint(Sketcher.Constraint("Equal", 4, 6))
sketch10.addConstraint(Sketcher.Constraint("Equal", 8, 9))
sketch10.addConstraint(Sketcher.Constraint("Equal", 9, 10))
sketch10.addConstraint(Sketcher.Constraint("Equal", 10, 11))
sketch10.addConstraint(Sketcher.Constraint("Equal", 11, 12))
sketch10.addConstraint(Sketcher.Constraint("Equal", 12, 13))
sketch10.addConstraint(Sketcher.Constraint("Equal", 15, 17))
sketch10.addConstraint(Sketcher.Constraint("Equal", 17, 19))
sketch10.addConstraint(Sketcher.Constraint("Equal", 19, 21))
sketch10.addConstraint(Sketcher.Constraint("Equal", 13, 22))
sketch10.addConstraint(Sketcher.Constraint("Equal", 22, 23))
sketch10.addConstraint(Sketcher.Constraint("Symmetric", 0, 3, 4, 3, -1, 1))
sketch10.addConstraint(Sketcher.Constraint("Symmetric", 11, 3, 12, 3, -1, 1))
sketch10.addConstraint(Sketcher.Constraint("Symmetric", 10, 3, 13, 3, -1, 1))
sketch10.addConstraint(Sketcher.Constraint("Symmetric", 15, 3, 19, 3, -1, 1))
sketch10.addConstraint(Sketcher.Constraint("Symmetric", 9, 3, 22, 3, -1, 1))
sketch10.addConstraint(Sketcher.Constraint("Symmetric", 8, 3, 23, 3, -1, 1))
sketch10.addConstraint(Sketcher.Constraint("Symmetric", 9, 3, 10, 3, -2))
sketch10.addConstraint(Sketcher.Constraint("Symmetric", 8, 3, 11, 3, -2))
sketch10.addConstraint(Sketcher.Constraint("Horizontal", 8, 3, 9, 3))
sketch10.addConstraint(Sketcher.Constraint("Radius", 0, Q("4 in")))
sketch10.addConstraint(Sketcher.Constraint("Radius", 15, Q("0.5 in")))
sketch10.addConstraint(Sketcher.Constraint("DistanceX", 16, 1, 16, 2, Q("103 in")))
sketch10.addConstraint(Sketcher.Constraint("DistanceY", 3, 2, 3, 1, Q("32 in")))
sketch10.addConstraint(Sketcher.Constraint("DistanceY", 14, 1, 14, 2, Q("24 in")))
sketch10.addConstraint(Sketcher.Constraint("Diameter", 8, Q("0.8125 in")))
sketch10.addConstraint(Sketcher.Constraint("DistanceX", 9, 3, -1, 1, Q("40 in")))
sketch10.addConstraint(Sketcher.Constraint("DistanceX", 1, 2, 1, 1, Q("102.63 in")))
sketch10.addConstraint(Sketcher.Constraint("DistanceX", 8, 3, 11, 3, Q("83.5 in")))
sketch10.addConstraint(Sketcher.Constraint("DistanceY", 8, 3, -1, 1, Q("18.4375 in")))
pad7 = doc.addObject("PartDesign::Pad", "Pad006")
body9.addObject(pad7)
pad7.Profile = sketch10
pad7.Length = Q("0.5 in")
body10 = doc.addObject("PartDesign::Body", "Body009")
doc.recompute()

mirroring = doc.addObject("Part::Mirroring", "Mirroring")
mirroring.Source = body8
mirroring.Base = App.Vector(0, 0, 0)
mirroring.Normal = App.Vector(0, 0, 1)
body10.BaseFeature = mirroring
doc.recompute()
body11 = doc.addObject("PartDesign::Body", "Body010")
doc.recompute()

mirroring2 = doc.addObject("Part::Mirroring", "Mirroring001")
mirroring2.Source = body8
mirroring2.Base = App.Vector(0, 0, 0)
mirroring2.Normal = App.Vector(0, -1, 0)
body11.BaseFeature = mirroring2
doc.recompute()
body12 = doc.addObject("PartDesign::Body", "Body011")
doc.recompute()

mirroring3 = doc.addObject("Part::Mirroring", "Mirroring002")
mirroring3.Source = body10
mirroring3.Base = App.Vector(0, 0, 0)
mirroring3.Normal = App.Vector(0, -1, 0)
body12.BaseFeature = mirroring3
doc.recompute()
body13 = doc.addObject("PartDesign::Body", "Body012")

sketch11 = doc.addObject("Sketcher::SketchObject", "Sketch010")
body13.addObject(sketch11)
sketch11.AttachmentSupport = (doc.getObject("XY_Plane012"), [""])
sketch11.MapMode = "FlatFace"
sketch11.AttachmentOffset = App.Placement(App.Vector(0, 0, 13.62 * 25.4), App.Rotation())
add_polygon(sketch11, [(13, -952), (13, -965), (368, -965), (368, -952)])
sketch11.addConstraint(Sketcher.Constraint("Vertical", 0))
sketch11.addConstraint(Sketcher.Constraint("Horizontal", 1))
sketch11.addConstraint(Sketcher.Constraint("Vertical", 2))
sketch11.addConstraint(Sketcher.Constraint("Horizontal", 3))
sketch11.addConstraint(Sketcher.Constraint("DistanceX", 1, 1, 1, 2, Q("14 in")))
sketch11.addConstraint(Sketcher.Constraint("DistanceY", 0, 2, 0, 1, Q("0.5 in")))
sketch11.addConstraint(Sketcher.Constraint("DistanceY", 0, 2, -1, 1, Q("38 in")))
sketch11.addConstraint(Sketcher.Constraint("DistanceX", -1, 1, 0, 2, Q("0.5 in")))
pad8 = doc.addObject("PartDesign::Pad", "Pad007")
body13.addObject(pad8)
pad8.Profile = sketch11
pad8.Length = Q("6.38 in")
body14 = doc.addObject("PartDesign::Body", "Body013")
doc.recompute()

mirroring4 = doc.addObject("Part::Mirroring", "Mirroring003")
mirroring4.Source = body13
mirroring4.Base = App.Vector(0, 0, 0)
mirroring4.Normal = App.Vector(0, -1, 0)
body14.BaseFeature = mirroring4
doc.recompute()
body15 = doc.addObject("PartDesign::Body", "Body014")
doc.recompute()

mirroring5 = doc.addObject("Part::Mirroring", "Mirroring004")
mirroring5.Source = body13
mirroring5.Base = App.Vector(0, 0, 0)
mirroring5.Normal = App.Vector(0, 0, 1)
body15.BaseFeature = mirroring5
doc.recompute()
body16 = doc.addObject("PartDesign::Body", "Body015")
doc.recompute()

mirroring6 = doc.addObject("Part::Mirroring", "Mirroring005")
mirroring6.Source = body14
mirroring6.Base = App.Vector(0, 0, 0)
mirroring6.Normal = App.Vector(0, 0, 1)
body16.BaseFeature = mirroring6
doc.recompute()
mirroring.Visibility = False
mirroring2.Visibility = False
mirroring3.Visibility = False
mirroring4.Visibility = False
mirroring5.Visibility = False
mirroring6.Visibility = False

doc.recompute()
